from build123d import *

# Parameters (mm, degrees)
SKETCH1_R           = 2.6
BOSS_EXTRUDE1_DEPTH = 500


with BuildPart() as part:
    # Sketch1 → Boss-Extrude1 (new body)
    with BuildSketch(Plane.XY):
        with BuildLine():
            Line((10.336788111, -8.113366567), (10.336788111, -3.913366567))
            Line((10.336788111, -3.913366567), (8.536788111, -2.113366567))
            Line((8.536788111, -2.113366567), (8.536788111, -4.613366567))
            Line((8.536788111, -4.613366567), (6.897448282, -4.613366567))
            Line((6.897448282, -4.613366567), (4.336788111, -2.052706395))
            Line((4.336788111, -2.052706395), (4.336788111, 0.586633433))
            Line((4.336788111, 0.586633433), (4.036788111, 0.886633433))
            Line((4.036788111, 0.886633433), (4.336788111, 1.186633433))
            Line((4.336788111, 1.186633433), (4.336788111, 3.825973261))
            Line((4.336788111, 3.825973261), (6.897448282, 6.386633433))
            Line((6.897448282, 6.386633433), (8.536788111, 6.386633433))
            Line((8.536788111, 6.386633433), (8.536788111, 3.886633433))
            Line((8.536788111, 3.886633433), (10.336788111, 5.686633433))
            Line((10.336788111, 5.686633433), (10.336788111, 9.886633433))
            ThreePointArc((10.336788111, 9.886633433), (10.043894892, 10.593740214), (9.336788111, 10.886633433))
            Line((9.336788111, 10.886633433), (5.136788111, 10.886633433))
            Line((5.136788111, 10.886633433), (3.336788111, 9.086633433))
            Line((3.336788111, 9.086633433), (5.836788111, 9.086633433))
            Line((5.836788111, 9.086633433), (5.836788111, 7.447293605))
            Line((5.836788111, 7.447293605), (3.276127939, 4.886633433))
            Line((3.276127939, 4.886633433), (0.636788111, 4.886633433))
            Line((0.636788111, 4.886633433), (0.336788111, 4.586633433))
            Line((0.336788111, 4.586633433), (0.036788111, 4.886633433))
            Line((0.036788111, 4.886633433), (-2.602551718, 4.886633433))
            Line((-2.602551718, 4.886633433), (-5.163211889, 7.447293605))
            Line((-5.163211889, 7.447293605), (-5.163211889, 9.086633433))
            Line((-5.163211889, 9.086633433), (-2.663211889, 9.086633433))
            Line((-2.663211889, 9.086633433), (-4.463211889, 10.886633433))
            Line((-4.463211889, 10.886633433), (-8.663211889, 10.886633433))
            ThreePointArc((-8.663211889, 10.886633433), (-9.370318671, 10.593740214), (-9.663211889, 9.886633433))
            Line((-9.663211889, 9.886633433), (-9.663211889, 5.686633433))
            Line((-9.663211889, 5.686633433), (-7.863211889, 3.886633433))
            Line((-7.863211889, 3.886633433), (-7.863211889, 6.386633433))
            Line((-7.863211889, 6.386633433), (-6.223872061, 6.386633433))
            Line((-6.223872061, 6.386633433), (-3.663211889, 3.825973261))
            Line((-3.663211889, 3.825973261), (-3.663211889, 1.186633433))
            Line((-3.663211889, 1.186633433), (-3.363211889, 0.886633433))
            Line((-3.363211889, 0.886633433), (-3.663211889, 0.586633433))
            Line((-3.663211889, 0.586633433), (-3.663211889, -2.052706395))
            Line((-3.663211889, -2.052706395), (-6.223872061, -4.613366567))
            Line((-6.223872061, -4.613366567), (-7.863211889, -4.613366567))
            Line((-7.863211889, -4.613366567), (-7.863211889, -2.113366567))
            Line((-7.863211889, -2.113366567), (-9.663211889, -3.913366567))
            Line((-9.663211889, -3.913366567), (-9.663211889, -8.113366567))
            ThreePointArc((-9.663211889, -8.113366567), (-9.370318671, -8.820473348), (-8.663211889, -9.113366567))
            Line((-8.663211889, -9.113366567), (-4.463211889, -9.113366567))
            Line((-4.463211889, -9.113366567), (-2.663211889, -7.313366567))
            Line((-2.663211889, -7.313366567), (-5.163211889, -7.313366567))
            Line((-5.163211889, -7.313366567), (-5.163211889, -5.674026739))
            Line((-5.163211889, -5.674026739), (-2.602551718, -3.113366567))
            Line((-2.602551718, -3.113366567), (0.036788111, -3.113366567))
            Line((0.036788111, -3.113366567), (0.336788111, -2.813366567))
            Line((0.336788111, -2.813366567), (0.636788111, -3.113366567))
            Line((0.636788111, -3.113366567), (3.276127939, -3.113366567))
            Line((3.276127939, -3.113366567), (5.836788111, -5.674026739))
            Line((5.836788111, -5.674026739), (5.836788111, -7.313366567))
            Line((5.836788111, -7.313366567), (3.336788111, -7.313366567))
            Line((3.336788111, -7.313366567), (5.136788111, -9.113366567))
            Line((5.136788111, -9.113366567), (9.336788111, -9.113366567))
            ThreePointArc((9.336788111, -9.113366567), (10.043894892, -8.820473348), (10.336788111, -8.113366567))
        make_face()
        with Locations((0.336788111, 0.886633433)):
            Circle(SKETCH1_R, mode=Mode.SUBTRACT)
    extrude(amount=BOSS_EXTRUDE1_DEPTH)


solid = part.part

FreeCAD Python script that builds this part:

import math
import FreeCAD as App
import Part
import Sketcher
from FreeCAD import Vector

doc = App.newDocument("Part")
params = doc.addObject("Spreadsheet::Sheet", "Params")
for row, (alias, value) in enumerate([
    ("sketch1_radius", "1 mm"),
    ("sketch1_diameter", "5.2 mm"),
    ("sketch1_width", "4.2 mm"),
    ("sketch1_width2", "2.5 mm"),
    ("pad1_length", "500 mm"),
], start=1):
    params.set(f"A{row}", alias)
    params.set(f"B{row}", "=" + value)
    params.setAlias(f"B{row}", alias)

body = doc.addObject("PartDesign::Body", "Body")

sketch1 = doc.addObject("Sketcher::SketchObject", "Sketch")
body.addObject(sketch1)
sketch1.AttachmentSupport = (doc.XY_Plane, [""])
sketch1.MapMode = "FlatFace"
sketch1.addGeometry([
    Part.LineSegment(Vector(10.34, -8.11, 0), Vector(10.34, -3.91, 0)),
    Part.LineSegment(Vector(10.34, -3.91, 0), Vector(8.54, -2.11, 0)),
    Part.LineSegment(Vector(8.54, -2.11, 0), Vector(8.54, -4.61, 0)),
    Part.LineSegment(Vector(8.54, -4.61, 0), Vector(6.9, -4.61, 0)),
    Part.LineSegment(Vector(6.9, -4.61, 0), Vector(4.34, -2.05, 0)),
    Part.LineSegment(Vector(4.34, -2.05, 0), Vector(4.34, 0.59, 0)),
    Part.LineSegment(Vector(4.34, 0.59, 0), Vector(4.04, 0.89, 0)),
    Part.LineSegment(Vector(4.04, 0.89, 0), Vector(4.34, 1.19, 0)),
    Part.LineSegment(Vector(4.34, 1.19, 0), Vector(4.34, 3.83, 0)),
    Part.LineSegment(Vector(4.34, 3.83, 0), Vector(6.9, 6.39, 0)),
    Part.LineSegment(Vector(6.9, 6.39, 0), Vector(8.54, 6.39, 0)),
    Part.LineSegment(Vector(8.54, 6.39, 0), Vector(8.54, 3.89, 0)),
    Part.LineSegment(Vector(8.54, 3.89, 0), Vector(10.34, 5.69, 0)),
    Part.LineSegment(Vector(10.34, 5.69, 0), Vector(10.34, 9.89, 0)),
    Part.ArcOfCircle(Part.Circle(Vector(9.34, 9.89, 0), Vector(0, 0, 1), 1), math.radians(0), math.radians(90)),
    Part.LineSegment(Vector(9.34, 10.89, 0), Vector(5.14, 10.89, 0)),
    Part.LineSegment(Vector(5.14, 10.89, 0), Vector(3.34, 9.09, 0)),
    Part.LineSegment(Vector(3.34, 9.09, 0), Vector(5.84, 9.09, 0)),
    Part.LineSegment(Vector(5.84, 9.09, 0), Vector(5.84, 7.45, 0)),
    Part.LineSegment(Vector(5.84, 7.45, 0), Vector(3.28, 4.89, 0)),
    Part.LineSegment(Vector(3.28, 4.89, 0), Vector(0.64, 4.89, 0)),
    Part.LineSegment(Vector(0.64, 4.89, 0), Vector(0.34, 4.59, 0)),
    Part.LineSegment(Vector(0.34, 4.59, 0), Vector(0.04, 4.89, 0)),
    Part.LineSegment(Vector(0.04, 4.89, 0), Vector(-2.6, 4.89, 0)),
    Part.LineSegment(Vector(-2.6, 4.89, 0), Vector(-5.16, 7.45, 0)),
    Part.LineSegment(Vector(-5.16, 7.45, 0), Vector(-5.16, 9.09, 0)),
    Part.LineSegment(Vector(-5.16, 9.09, 0), Vector(-2.66, 9.09, 0)),
    Part.LineSegment(Vector(-2.66, 9.09, 0), Vector(-4.46, 10.89, 0)),
    Part.LineSegment(Vector(-4.46, 10.89, 0), Vector(-8.66, 10.89, 0)),
    Part.ArcOfCircle(Part.Circle(Vector(-8.66, 9.89, 0), Vector(0, 0, 1), 1), math.radians(90), math.radians(180)),
    Part.LineSegment(Vector(-9.66, 9.89, 0), Vector(-9.66, 5.69, 0)),
    Part.LineSegment(Vector(-9.66, 5.69, 0), Vector(-7.86, 3.89, 0)),
    Part.LineSegment(Vector(-7.86, 3.89, 0), Vector(-7.86, 6.39, 0)),
    Part.LineSegment(Vector(-7.86, 6.39, 0), Vector(-6.22, 6.39, 0)),
    Part.LineSegment(Vector(-6.22, 6.39, 0), Vector(-3.66, 3.83, 0)),
    Part.LineSegment(Vector(-3.66, 3.83, 0), Vector(-3.66, 1.19, 0)),
    Part.LineSegment(Vector(-3.66, 1.19, 0), Vector(-3.36, 0.89, 0)),
    Part.LineSegment(Vector(-3.36, 0.89, 0), Vector(-3.66, 0.59, 0)),
    Part.LineSegment(Vector(-3.66, 0.59, 0), Vector(-3.66, -2.05, 0)),
    Part.LineSegment(Vector(-3.66, -2.05, 0), Vector(-6.22, -4.61, 0)),
    Part.LineSegment(Vector(-6.22, -4.61, 0), Vector(-7.86, -4.61, 0)),
    Part.LineSegment(Vector(-7.86, -4.61, 0), Vector(-7.86, -2.11, 0)),
    Part.LineSegment(Vector(-7.86, -2.11, 0), Vector(-9.66, -3.91, 0)),
    Part.LineSegment(Vector(-9.66, -3.91, 0), Vector(-9.66, -8.11, 0)),
    Part.ArcOfCircle(Part.Circle(Vector(-8.66, -8.11, 0), Vector(0, 0, 1), 1), math.radians(180), math.radians(270)),
    Part.LineSegment(Vector(-8.66, -9.11, 0), Vector(-4.46, -9.11, 0)),
    Part.LineSegment(Vector(-4.46, -9.11, 0), Vector(-2.66, -7.31, 0)),
    Part.LineSegment(Vector(-2.66, -7.31, 0), Vector(-5.16, -7.31, 0)),
    Part.LineSegment(Vector(-5.16, -7.31, 0), Vector(-5.16, -5.67, 0)),
    Part.LineSegment(Vector(-5.16, -5.67, 0), Vector(-2.6, -3.11, 0)),
    Part.LineSegment(Vector(-2.6, -3.11, 0), Vector(0.04, -3.11, 0)),
    Part.LineSegment(Vector(0.04, -3.11, 0), Vector(0.34, -2.81, 0)),
    Part.LineSegment(Vector(0.34, -2.81, 0), Vector(0.64, -3.11, 0)),
    Part.LineSegment(Vector(0.64, -3.11, 0), Vector(3.28, -3.11, 0)),
    Part.LineSegment(Vector(3.28, -3.11, 0), Vector(5.84, -5.67, 0)),
    Part.LineSegment(Vector(5.84, -5.67, 0), Vector(5.84, -7.31, 0)),
    Part.LineSegment(Vector(5.84, -7.31, 0), Vector(3.34, -7.31, 0)),
    Part.LineSegment(Vector(3.34, -7.31, 0), Vector(5.14, -9.11, 0)),
    Part.LineSegment(Vector(5.14, -9.11, 0), Vector(9.34, -9.11, 0)),
    Part.ArcOfCircle(Part.Circle(Vector(9.34, -8.11, 0), Vector(0, 0, 1), 1), math.radians(-90), math.radians(0)),
    Part.Circle(Vector(0.34, 0.89, 0), Vector(0, 0, 1), 2.6),
], False)
sketch1.addConstraint([
    Sketcher.Constraint("Coincident", 0, 2, 1, 1),
    Sketcher.Constraint("Coincident", 1, 2, 2, 1),
    Sketcher.Constraint("Coincident", 2, 2, 3, 1),
    Sketcher.Constraint("Coincident", 3, 2, 4, 1),
    Sketcher.Constraint("Coincident", 4, 2, 5, 1),
    Sketcher.Constraint("Coincident", 5, 2, 6, 1),
    Sketcher.Constraint("Coincident", 6, 2, 7, 1),
    Sketcher.Constraint("Coincident", 7, 2, 8, 1),
    Sketcher.Constraint("Coincident", 8, 2, 9, 1),
    Sketcher.Constraint("Coincident", 9, 2, 10, 1),
    Sketcher.Constraint("Coincident", 10, 2, 11, 1),
    Sketcher.Constraint("Coincident", 11, 2, 12, 1),
    Sketcher.Constraint("Coincident", 12, 2, 13, 1),
    Sketcher.Constraint("Tangent", 13, 2, 14, 1),
    Sketcher.Constraint("Tangent", 14, 2, 15, 1),
    Sketcher.Constraint("Coincident", 15, 2, 16, 1),
    Sketcher.Constraint("Coincident", 16, 2, 17, 1),
    Sketcher.Constraint("Coincident", 17, 2, 18, 1),
    Sketcher.Constraint("Coincident", 18, 2, 19, 1),
    Sketcher.Constraint("Coincident", 19, 2, 20, 1),
    Sketcher.Constraint("Coincident", 20, 2, 21, 1),
    Sketcher.Constraint("Coincident", 21, 2, 22, 1),
    Sketcher.Constraint("Coincident", 22, 2, 23, 1),
    Sketcher.Constraint("Coincident", 23, 2, 24, 1),
    Sketcher.Constraint("Coincident", 24, 2, 25, 1),
    Sketcher.Constraint("Coincident", 25, 2, 26, 1),
    Sketcher.Constraint("Coincident", 26, 2, 27, 1),
    Sketcher.Constraint("Coincident", 27, 2, 28, 1),
    Sketcher.Constraint("Tangent", 28, 2, 29, 1),
    Sketcher.Constraint("Tangent", 29, 2, 30, 1),
    Sketcher.Constraint("Coincident", 30, 2, 31, 1),
    Sketcher.Constraint("Coincident", 31, 2, 32, 1),
    Sketcher.Constraint("Coincident", 32, 2, 33, 1),
    Sketcher.Constraint("Coincident", 33, 2, 34, 1),
    Sketcher.Constraint("Coincident", 34, 2, 35, 1),
    Sketcher.Constraint("Coincident", 35, 2, 36, 1),
    Sketcher.Constraint("Coincident", 36, 2, 37, 1),
    Sketcher.Constraint("Coincident", 37, 2, 38, 1),
    Sketcher.Constraint("Coincident", 38, 2, 39, 1),
    Sketcher.Constraint("Coincident", 39, 2, 40, 1),
    Sketcher.Constraint("Coincident", 40, 2, 41, 1),
    Sketcher.Constraint("Coincident", 41, 2, 42, 1),
    Sketcher.Constraint("Coincident", 42, 2, 43, 1),
    Sketcher.Constraint("Tangent", 43, 2, 44, 1),
    Sketcher.Constraint("Tangent", 44, 2, 45, 1),
    Sketcher.Constraint("Coincident", 45, 2, 46, 1),
    Sketcher.Constraint("Coincident", 46, 2, 47, 1),
    Sketcher.Constraint("Coincident", 47, 2, 48, 1),
    Sketcher.Constraint("Coincident", 48, 2, 49, 1),
    Sketcher.Constraint("Coincident", 49, 2, 50, 1),
    Sketcher.Constraint("Coincident", 50, 2, 51, 1),
    Sketcher.Constraint("Coincident", 51, 2, 52, 1),
    Sketcher.Constraint("Coincident", 52, 2, 53, 1),
    Sketcher.Constraint("Coincident", 53, 2, 54, 1),
    Sketcher.Constraint("Coincident", 54, 2, 55, 1),
    Sketcher.Constraint("Coincident", 55, 2, 56, 1),
    Sketcher.Constraint("Coincident", 56, 2, 57, 1),
    Sketcher.Constraint("Coincident", 57, 2, 58, 1),
    Sketcher.Constraint("Tangent", 58, 2, 59, 1),
    Sketcher.Constraint("Tangent", 59, 2, 0, 1),
    Sketcher.Constraint("Vertical", 0),
    Sketcher.Constraint("Vertical", 2),
    Sketcher.Constraint("Horizontal", 3),
    Sketcher.Constraint("Vertical", 5),
    Sketcher.Constraint("Vertical", 8),
    Sketcher.Constraint("Horizontal", 10),
    Sketcher.Constraint("Vertical", 11),
    Sketcher.Constraint("Vertical", 13),
    Sketcher.Constraint("Horizontal", 15),
    Sketcher.Constraint("Horizontal", 17),
    Sketcher.Constraint("Vertical", 18),
    Sketcher.Constraint("Horizontal", 20),
    Sketcher.Constraint("Horizontal", 23),
    Sketcher.Constraint("Vertical", 25),
    Sketcher.Constraint("Horizontal", 26),
    Sketcher.Constraint("Horizontal", 28),
    Sketcher.Constraint("Vertical", 30),
    Sketcher.Constraint("Vertical", 32),
    Sketcher.Constraint("Horizontal", 33),
    Sketcher.Constraint("Vertical", 35),
    Sketcher.Constraint("Vertical", 38),
    Sketcher.Constraint("Horizontal", 40),
    Sketcher.Constraint("Vertical", 41),
    Sketcher.Constraint("Vertical", 43),
    Sketcher.Constraint("Horizontal", 45),
    Sketcher.Constraint("Horizontal", 47),
    Sketcher.Constraint("Vertical", 48),
    Sketcher.Constraint("Horizontal", 50),
    Sketcher.Constraint("Horizontal", 53),
    Sketcher.Constraint("Vertical", 55),
    Sketcher.Constraint("Horizontal", 56),
    Sketcher.Constraint("Horizontal", 58),
    Sketcher.Constraint("Equal", 14, 29),
    Sketcher.Constraint("Equal", 29, 44),
    Sketcher.Constraint("Equal", 44, 59),
    Sketcher.Constraint("Parallel", 1, 4),
    Sketcher.Constraint("Parallel", 4, 6),
    Sketcher.Constraint("Perpendicular", 6, 7),
    Sketcher.Constraint("Parallel", 7, 9),
    Sketcher.Constraint("Parallel", 9, 12),
    Sketcher.Constraint("Parallel", 12, 16),
    Sketcher.Constraint("Parallel", 16, 19),
    Sketcher.Constraint("Parallel", 19, 21),
    Sketcher.Constraint("Perpendicular", 21, 22),
    Sketcher.Constraint("Parallel", 22, 24),
    Sketcher.Constraint("Parallel", 24, 27),
    Sketcher.Constraint("Parallel", 27, 31),
    Sketcher.Constraint("Parallel", 31, 34),
    Sketcher.Constraint("Parallel", 34, 36),
    Sketcher.Constraint("Perpendicular", 36, 37),
    Sketcher.Constraint("Parallel", 37, 39),
    Sketcher.Constraint("Parallel", 39, 42),
    Sketcher.Constraint("Parallel", 42, 46),
    Sketcher.Constraint("Parallel", 46, 49),
    Sketcher.Constraint("Parallel", 49, 51),
    Sketcher.Constraint("Perpendicular", 51, 52),
    Sketcher.Constraint("Parallel", 52, 54),
    Sketcher.Constraint("Parallel", 54, 57),
    Sketcher.Constraint("Horizontal", 14, 3, 29, 3),
    Sketcher.Constraint("Horizontal", 44, 3, 59, 3),
    Sketcher.Constraint("Horizontal", 60, 3, 6, 2),
    Sketcher.Constraint("Horizontal", 20, 2, 22, 2),
    Sketcher.Constraint("Horizontal", 18, 2, 24, 2),
    Sketcher.Constraint("Horizontal", 17, 2, 25, 2),
    Sketcher.Constraint("Horizontal", 12, 2, 30, 2),
    Sketcher.Constraint("Horizontal", 11, 2, 31, 2),
    Sketcher.Constraint("Horizontal", 10, 2, 32, 2),
    Sketcher.Constraint("Horizontal", 8, 2, 34, 2),
    Sketcher.Constraint("Horizontal", 7, 2, 35, 2),
    Sketcher.Constraint("Horizontal", 6, 2, 36, 2),
    Sketcher.Constraint("Horizontal", 5, 2, 37, 2),
    Sketcher.Constraint("Horizontal", 4, 2, 38, 2),
    Sketcher.Constraint("Horizontal", 3, 2, 39, 2),
    Sketcher.Constraint("Horizontal", 1, 2, 41, 2),
    Sketcher.Constraint("Horizontal", 0, 2, 42, 2),
    Sketcher.Constraint("Horizontal", 50, 2, 52, 2),
    Sketcher.Constraint("Horizontal", 48, 2, 54, 2),
    Sketcher.Constraint("Horizontal", 47, 2, 55, 2),
    Sketcher.Constraint("Vertical", 29, 3, 44, 3),
    Sketcher.Constraint("Vertical", 14, 3, 59, 3),
    Sketcher.Constraint("Vertical", 5, 2, 7, 2),
    Sketcher.Constraint("Vertical", 3, 2, 9, 2),
    Sketcher.Constraint("Vertical", 2, 2, 10, 2),
    Sketcher.Constraint("Vertical", 60, 3, 21, 2),
    Sketcher.Constraint("Vertical", 35, 2, 37, 2),
    Sketcher.Constraint("Vertical", 27, 2, 45, 2),
    Sketcher.Constraint("Vertical", 26, 2, 46, 2),
    Sketcher.Constraint("Vertical", 25, 2, 47, 2),
    Sketcher.Constraint("Vertical", 23, 2, 49, 2),
    Sketcher.Constraint("Vertical", 22, 2, 50, 2),
    Sketcher.Constraint("Vertical", 21, 2, 51, 2),
    Sketcher.Constraint("Vertical", 19, 2, 53, 2),
    Sketcher.Constraint("Vertical", 16, 2, 56, 2),
    Sketcher.Constraint("Equal", 20, 23),
    Sketcher.Constraint("Equal", 17, 26),
    Sketcher.Constraint("Equal", 15, 28),
    Sketcher.Constraint("Equal", 10, 33),
    Sketcher.Constraint("Equal", 58, 0),
    Sketcher.Constraint("Equal", 56, 2),
    Sketcher.Constraint("Equal", 53, 5),
    Sketcher.Constraint("Equal", 5, 8),
    Sketcher.Constraint("Equal", 2, 11),
    Sketcher.Constraint("Equal", 0, 13),
    Sketcher.Constraint("Equal", 40, 18),
    Sketcher.Constraint("Equal", 25, 48),
    Sketcher.Constraint("Equal", 12, 16),
    Sketcher.Constraint("Equal", 9, 19),
    Sketcher.Constraint("Equal", 7, 21),
    Sketcher.Constraint("Radius", 14, 1.0),
    Sketcher.Constraint("Diameter", 60, 5.2),
    Sketcher.Constraint("DistanceX", 15, 2, 15, 1, 4.2),
    Sketcher.Constraint("DistanceX", 17, 1, 17, 2, 2.5),
    Sketcher.Constraint("DistanceX", 3, 2, 3, 1, 1.63934),
    Sketcher.Constraint("DistanceX", 20, 2, 20, 1, 2.63934),
    Sketcher.Constraint("Distance", 4, 3.62132),
    Sketcher.Constraint("DistanceX", -1, 1, 14, 3, 9.336788),
    Sketcher.Constraint("DistanceX", 29, 3, -1, 1, 8.663212),
    Sketcher.Constraint("DistanceX", -1, 1, 1, 2, 8.536788),
    Sketcher.Constraint("DistanceY", -1, 1, 14, 3, 9.886633),
])
sketch1.setExpression("Constraints[168]", "Params.sketch1_radius")
sketch1.setExpression("Constraints[169]", "Params.sketch1_diameter")
sketch1.setExpression("Constraints[170]", "Params.sketch1_width")
sketch1.setExpression("Constraints[171]", "Params.sketch1_width2")
pad1 = doc.addObject("PartDesign::Pad", "Pad")
body.addObject(pad1)
pad1.Profile = sketch1
pad1.setExpression("Length", "Params.pad1_length")

doc.recompute()
